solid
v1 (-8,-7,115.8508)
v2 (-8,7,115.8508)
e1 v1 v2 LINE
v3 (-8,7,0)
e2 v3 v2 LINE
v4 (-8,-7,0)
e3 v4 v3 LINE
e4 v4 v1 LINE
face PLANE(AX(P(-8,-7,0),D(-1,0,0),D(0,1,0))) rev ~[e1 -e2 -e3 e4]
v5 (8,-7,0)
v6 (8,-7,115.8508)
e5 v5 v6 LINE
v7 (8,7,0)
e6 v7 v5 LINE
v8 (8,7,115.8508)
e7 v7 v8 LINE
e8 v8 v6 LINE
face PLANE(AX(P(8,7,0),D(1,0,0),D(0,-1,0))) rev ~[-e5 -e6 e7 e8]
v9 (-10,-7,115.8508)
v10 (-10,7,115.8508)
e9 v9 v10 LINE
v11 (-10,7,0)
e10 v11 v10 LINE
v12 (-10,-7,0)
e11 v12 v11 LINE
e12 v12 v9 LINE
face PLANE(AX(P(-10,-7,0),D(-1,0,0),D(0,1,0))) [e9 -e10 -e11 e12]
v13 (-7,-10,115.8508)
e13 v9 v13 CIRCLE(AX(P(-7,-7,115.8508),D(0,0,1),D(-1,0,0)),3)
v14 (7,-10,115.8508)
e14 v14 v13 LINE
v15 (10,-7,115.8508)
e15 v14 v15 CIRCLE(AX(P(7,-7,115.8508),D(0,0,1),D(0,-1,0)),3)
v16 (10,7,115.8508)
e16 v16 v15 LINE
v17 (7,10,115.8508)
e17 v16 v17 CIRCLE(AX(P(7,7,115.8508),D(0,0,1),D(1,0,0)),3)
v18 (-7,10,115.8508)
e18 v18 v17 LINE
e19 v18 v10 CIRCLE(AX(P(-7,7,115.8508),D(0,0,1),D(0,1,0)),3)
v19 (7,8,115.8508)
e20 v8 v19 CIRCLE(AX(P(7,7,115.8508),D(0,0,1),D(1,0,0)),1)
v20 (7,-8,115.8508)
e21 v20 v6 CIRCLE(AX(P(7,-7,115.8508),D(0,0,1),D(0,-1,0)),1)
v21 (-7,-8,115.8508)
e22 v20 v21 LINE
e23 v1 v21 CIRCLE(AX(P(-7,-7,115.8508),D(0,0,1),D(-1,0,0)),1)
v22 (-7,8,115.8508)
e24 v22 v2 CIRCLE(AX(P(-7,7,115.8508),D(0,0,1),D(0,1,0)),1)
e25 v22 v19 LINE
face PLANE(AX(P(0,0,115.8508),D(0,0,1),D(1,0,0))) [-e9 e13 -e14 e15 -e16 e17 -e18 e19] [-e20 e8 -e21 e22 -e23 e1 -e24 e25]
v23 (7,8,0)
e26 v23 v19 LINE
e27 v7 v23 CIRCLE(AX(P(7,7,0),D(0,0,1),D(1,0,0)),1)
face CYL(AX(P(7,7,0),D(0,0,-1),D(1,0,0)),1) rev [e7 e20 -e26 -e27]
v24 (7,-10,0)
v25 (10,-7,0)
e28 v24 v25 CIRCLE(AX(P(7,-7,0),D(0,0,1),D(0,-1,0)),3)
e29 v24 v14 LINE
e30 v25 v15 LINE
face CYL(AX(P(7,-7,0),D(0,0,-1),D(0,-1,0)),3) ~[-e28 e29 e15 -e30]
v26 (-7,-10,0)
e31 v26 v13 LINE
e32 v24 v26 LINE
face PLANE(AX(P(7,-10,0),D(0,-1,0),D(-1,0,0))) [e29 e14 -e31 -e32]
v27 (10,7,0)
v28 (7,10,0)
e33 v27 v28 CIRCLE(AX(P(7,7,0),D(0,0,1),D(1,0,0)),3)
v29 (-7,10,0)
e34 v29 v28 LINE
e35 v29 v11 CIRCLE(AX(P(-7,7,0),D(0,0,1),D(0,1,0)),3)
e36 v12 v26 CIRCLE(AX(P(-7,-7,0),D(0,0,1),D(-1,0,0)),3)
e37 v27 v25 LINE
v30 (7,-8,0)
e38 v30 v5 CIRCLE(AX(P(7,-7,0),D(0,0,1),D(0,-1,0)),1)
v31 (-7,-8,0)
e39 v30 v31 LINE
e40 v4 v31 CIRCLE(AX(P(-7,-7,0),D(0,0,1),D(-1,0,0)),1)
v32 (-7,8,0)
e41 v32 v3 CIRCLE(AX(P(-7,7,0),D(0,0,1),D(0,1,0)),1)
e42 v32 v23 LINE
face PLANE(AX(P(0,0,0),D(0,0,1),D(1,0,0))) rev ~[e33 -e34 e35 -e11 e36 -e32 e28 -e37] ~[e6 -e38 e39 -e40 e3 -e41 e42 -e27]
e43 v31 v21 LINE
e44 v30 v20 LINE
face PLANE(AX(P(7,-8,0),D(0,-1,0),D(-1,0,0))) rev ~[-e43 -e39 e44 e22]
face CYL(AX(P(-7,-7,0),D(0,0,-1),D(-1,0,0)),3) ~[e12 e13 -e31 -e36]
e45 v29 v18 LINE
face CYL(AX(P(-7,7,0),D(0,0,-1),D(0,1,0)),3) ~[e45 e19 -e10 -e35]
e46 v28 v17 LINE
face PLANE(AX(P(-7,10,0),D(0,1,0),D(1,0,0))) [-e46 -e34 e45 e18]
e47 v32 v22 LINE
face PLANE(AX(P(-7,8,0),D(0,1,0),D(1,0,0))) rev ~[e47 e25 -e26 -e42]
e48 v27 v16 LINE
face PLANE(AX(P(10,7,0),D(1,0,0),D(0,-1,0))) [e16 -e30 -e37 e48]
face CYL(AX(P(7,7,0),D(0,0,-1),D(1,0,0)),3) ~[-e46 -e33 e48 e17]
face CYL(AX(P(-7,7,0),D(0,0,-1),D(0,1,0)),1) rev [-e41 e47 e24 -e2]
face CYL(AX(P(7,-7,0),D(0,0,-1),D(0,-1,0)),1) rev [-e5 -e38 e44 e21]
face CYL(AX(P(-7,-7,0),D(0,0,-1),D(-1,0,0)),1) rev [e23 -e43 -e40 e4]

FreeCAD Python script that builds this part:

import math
import FreeCAD as App
import Part
import Sketcher
Q = App.Units.Quantity

doc = App.newDocument("Part")
body = doc.addObject("PartDesign::Body", "Body")

sketch1 = body.newObject("Sketcher::SketchObject", "Sketch")
sketch1.AttachmentSupport = (doc.getObject("XY_Plane"), [""])
sketch1.MapMode = "FlatFace"
sketch1.addGeometry(Part.LineSegment(App.Vector(-10, 7, 0), App.Vector(-10, -7, 0)), False)
sketch1.addGeometry(Part.ArcOfCircle(Part.Circle(App.Vector(-7, -7, 0), App.Vector(0, 0, 1), 3), math.radians(180), math.radians(270)), False)
sketch1.addGeometry(Part.LineSegment(App.Vector(-7, -10, 0), App.Vector(7, -10, 0)), False)
sketch1.addGeometry(Part.ArcOfCircle(Part.Circle(App.Vector(7, -7, 0), App.Vector(0, 0, 1), 3), math.radians(-90), math.radians(0)), False)
sketch1.addGeometry(Part.LineSegment(App.Vector(10, -7, 0), App.Vector(10, 7, 0)), False)
sketch1.addGeometry(Part.ArcOfCircle(Part.Circle(App.Vector(7, 7, 0), App.Vector(0, 0, 1), 3), math.radians(0), math.radians(90)), False)
sketch1.addGeometry(Part.LineSegment(App.Vector(7, 10, 0), App.Vector(-7, 10, 0)), False)
sketch1.addGeometry(Part.ArcOfCircle(Part.Circle(App.Vector(-7, 7, 0), App.Vector(0, 0, 1), 3), math.radians(90), math.radians(180)), False)
sketch1.addGeometry(Part.ArcOfCircle(Part.Circle(App.Vector(-7, 7, 0), App.Vector(0, 0, 1), 1), math.radians(90), math.radians(180)), False)
sketch1.addGeometry(Part.LineSegment(App.Vector(-7, 8, 0), App.Vector(7, 8, 0)), False)
sketch1.addGeometry(Part.ArcOfCircle(Part.Circle(App.Vector(7, 7, 0), App.Vector(0, 0, 1), 1), math.radians(0), math.radians(90)), False)
sketch1.addGeometry(Part.LineSegment(App.Vector(8, 7, 0), App.Vector(8, -7, 0)), False)
sketch1.addGeometry(Part.ArcOfCircle(Part.Circle(App.Vector(7, -7, 0), App.Vector(0, 0, 1), 1), math.radians(-90), math.radians(0)), False)
sketch1.addGeometry(Part.LineSegment(App.Vector(7, -8, 0), App.Vector(-7, -8, 0)), False)
sketch1.addGeometry(Part.ArcOfCircle(Part.Circle(App.Vector(-7, -7, 0), App.Vector(0, 0, 1), 1), math.radians(180), math.radians(270)), False)
sketch1.addGeometry(Part.LineSegment(App.Vector(-8, -7, 0), App.Vector(-8, 7, 0)), False)
sketch1.addConstraint(Sketcher.Constraint("Tangent", 0, 2, 1, 1))
sketch1.addConstraint(Sketcher.Constraint("Tangent", 1, 2, 2, 1))
sketch1.addConstraint(Sketcher.Constraint("Tangent", 2, 2, 3, 1))
sketch1.addConstraint(Sketcher.Constraint("Tangent", 3, 2, 4, 1))
sketch1.addConstraint(Sketcher.Constraint("Tangent", 4, 2, 5, 1))
sketch1.addConstraint(Sketcher.Constraint("Tangent", 5, 2, 6, 1))
sketch1.addConstraint(Sketcher.Constraint("Tangent", 6, 2, 7, 1))
sketch1.addConstraint(Sketcher.Constraint("Tangent", 7, 2, 0, 1))
sketch1.addConstraint(Sketcher.Constraint("Tangent", 8, 1, 9, 1))
sketch1.addConstraint(Sketcher.Constraint("Tangent", 9, 2, 10, 2))
sketch1.addConstraint(Sketcher.Constraint("Tangent", 10, 1, 11, 1))
sketch1.addConstraint(Sketcher.Constraint("Tangent", 11, 2, 12, 2))
sketch1.addConstraint(Sketcher.Constraint("Tangent", 12, 1, 13, 1))
sketch1.addConstraint(Sketcher.Constraint("Tangent", 13, 2, 14, 2))
sketch1.addConstraint(Sketcher.Constraint("Tangent", 14, 1, 15, 1))
sketch1.addConstraint(Sketcher.Constraint("Tangent", 15, 2, 8, 2))
sketch1.addConstraint(Sketcher.Constraint("Vertical", 0))
sketch1.addConstraint(Sketcher.Constraint("Horizontal", 2))
sketch1.addConstraint(Sketcher.Constraint("Vertical", 4))
sketch1.addConstraint(Sketcher.Constraint("Horizontal", 6))
sketch1.addConstraint(Sketcher.Constraint("Horizontal", 9))
sketch1.addConstraint(Sketcher.Constraint("Vertical", 11))
sketch1.addConstraint(Sketcher.Constraint("Horizontal", 13))
sketch1.addConstraint(Sketcher.Constraint("Vertical", 15))
sketch1.addConstraint(Sketcher.Constraint("Coincident", 8, 3, 7, 3))
sketch1.addConstraint(Sketcher.Constraint("Coincident", 10, 3, 5, 3))
sketch1.addConstraint(Sketcher.Constraint("Coincident", 12, 3, 3, 3))
sketch1.addConstraint(Sketcher.Constraint("Equal", 1, 3))
sketch1.addConstraint(Sketcher.Constraint("Equal", 3, 5))
sketch1.addConstraint(Sketcher.Constraint("Equal", 5, 7))
sketch1.addConstraint(Sketcher.Constraint("Equal", 12, 14))
sketch1.addConstraint(Sketcher.Constraint("Symmetric", 1, 3, 5, 3, -1, 1))
sketch1.addConstraint(Sketcher.Constraint("Equal", 13, 0))
sketch1.addConstraint(Sketcher.Constraint("Radius", 1, Q("3 mm")))
sketch1.addConstraint(Sketcher.Constraint("Radius", 8, Q("1 mm")))
sketch1.addConstraint(Sketcher.Constraint("DistanceX", 0, 2, -1, 1, Q("10 mm")))
pad1 = body.newObject("PartDesign::Pad", "Pad")
pad1.Profile = sketch1
pad1.Length = 115.8508

doc.recompute()
